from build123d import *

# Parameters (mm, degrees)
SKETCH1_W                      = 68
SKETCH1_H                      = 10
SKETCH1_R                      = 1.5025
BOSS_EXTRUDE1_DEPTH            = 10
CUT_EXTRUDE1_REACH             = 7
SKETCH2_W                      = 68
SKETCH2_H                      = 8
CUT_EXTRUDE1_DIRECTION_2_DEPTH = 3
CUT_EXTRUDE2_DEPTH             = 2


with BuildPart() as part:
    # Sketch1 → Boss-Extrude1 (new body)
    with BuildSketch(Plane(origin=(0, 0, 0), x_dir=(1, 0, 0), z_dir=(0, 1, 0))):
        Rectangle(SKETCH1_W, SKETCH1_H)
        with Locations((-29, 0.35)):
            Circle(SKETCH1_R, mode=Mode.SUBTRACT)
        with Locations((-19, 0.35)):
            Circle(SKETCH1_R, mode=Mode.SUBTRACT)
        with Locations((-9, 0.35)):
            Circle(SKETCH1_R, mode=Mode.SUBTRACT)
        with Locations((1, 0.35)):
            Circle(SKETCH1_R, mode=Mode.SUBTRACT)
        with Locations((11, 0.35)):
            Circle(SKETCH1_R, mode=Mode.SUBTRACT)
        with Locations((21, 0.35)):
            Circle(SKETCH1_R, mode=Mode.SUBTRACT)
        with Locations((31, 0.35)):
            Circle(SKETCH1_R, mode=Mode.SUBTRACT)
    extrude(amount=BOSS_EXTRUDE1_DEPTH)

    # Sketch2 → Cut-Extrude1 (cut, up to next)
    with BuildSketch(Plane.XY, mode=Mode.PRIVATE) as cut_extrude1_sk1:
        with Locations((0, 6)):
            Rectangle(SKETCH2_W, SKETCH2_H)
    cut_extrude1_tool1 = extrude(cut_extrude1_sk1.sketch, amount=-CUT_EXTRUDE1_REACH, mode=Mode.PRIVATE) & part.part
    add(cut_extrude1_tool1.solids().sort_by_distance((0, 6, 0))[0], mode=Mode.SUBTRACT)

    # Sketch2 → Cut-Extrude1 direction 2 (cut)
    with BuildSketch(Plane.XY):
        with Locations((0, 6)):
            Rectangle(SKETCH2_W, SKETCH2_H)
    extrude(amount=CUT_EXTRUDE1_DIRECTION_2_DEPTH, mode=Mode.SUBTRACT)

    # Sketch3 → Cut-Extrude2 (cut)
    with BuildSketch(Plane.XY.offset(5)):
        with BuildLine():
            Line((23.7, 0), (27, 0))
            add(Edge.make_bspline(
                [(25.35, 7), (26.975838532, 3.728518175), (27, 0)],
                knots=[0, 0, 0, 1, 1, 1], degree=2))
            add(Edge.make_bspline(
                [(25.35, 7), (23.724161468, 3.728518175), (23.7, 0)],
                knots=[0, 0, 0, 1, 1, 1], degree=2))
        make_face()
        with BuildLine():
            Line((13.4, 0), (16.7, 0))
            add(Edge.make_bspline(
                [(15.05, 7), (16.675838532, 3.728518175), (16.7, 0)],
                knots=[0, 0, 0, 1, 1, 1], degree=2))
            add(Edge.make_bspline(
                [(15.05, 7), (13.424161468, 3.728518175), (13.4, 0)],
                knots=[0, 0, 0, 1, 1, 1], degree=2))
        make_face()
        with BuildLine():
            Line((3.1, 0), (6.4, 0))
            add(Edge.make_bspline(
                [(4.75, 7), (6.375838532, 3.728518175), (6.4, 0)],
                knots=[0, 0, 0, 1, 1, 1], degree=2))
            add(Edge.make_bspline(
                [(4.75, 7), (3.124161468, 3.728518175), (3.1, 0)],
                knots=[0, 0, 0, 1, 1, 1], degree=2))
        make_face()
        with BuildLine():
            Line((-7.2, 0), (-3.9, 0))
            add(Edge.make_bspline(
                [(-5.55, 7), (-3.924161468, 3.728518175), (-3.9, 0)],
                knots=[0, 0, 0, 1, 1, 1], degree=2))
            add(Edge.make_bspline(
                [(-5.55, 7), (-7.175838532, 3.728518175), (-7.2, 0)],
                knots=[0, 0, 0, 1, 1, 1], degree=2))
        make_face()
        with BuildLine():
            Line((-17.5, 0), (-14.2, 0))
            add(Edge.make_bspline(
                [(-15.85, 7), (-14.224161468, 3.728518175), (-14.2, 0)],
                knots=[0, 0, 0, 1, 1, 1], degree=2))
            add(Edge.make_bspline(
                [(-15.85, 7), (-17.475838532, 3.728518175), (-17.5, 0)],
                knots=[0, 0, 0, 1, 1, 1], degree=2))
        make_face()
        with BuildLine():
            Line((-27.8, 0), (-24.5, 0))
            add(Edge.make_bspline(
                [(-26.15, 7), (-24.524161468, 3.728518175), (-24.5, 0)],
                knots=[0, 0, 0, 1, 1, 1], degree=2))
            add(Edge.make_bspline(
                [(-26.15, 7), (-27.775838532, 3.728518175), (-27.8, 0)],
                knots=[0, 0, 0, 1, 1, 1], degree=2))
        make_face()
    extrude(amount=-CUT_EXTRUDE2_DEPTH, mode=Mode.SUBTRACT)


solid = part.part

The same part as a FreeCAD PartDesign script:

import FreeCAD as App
import Part
import Sketcher


def add_polygon(sketch, points):
    """Adds a closed chain of lines whose ends are joined by coincident constraints."""
    first, n = sketch.GeometryCount, len(points)
    for a, b in zip(points, points[1:] + points[:1]):
        sketch.addGeometry(Part.LineSegment(App.Vector(*a, 0), App.Vector(*b, 0)), False)
    for i in range(n):
        sketch.addConstraint(Sketcher.Constraint("Coincident", first + i, 2, first + (i + 1) % n, 1))

doc = App.newDocument("Part")
body = doc.addObject("PartDesign::Body", "Body")

# Sketch on XZ plane
sketch1 = doc.addObject("Sketcher::SketchObject", "Sketch")
body.addObject(sketch1)
sketch1.AttachmentSupport = (doc.XZ_Plane, [""])
sketch1.MapMode = "FlatFace"
add_polygon(sketch1, [(-34, -5), (-34, 5), (34, 5), (34, -5)])  # lines 0-3
sketch1.addGeometry(Part.Circle(App.Vector(-29, -0.3, 0), App.Vector(0, 0, 1), 1.5), False)  # 4
sketch1.addGeometry(Part.Circle(App.Vector(-19, -0.3, 0), App.Vector(0, 0, 1), 1.5), False)  # 5
sketch1.addGeometry(Part.Circle(App.Vector(-9, -0.3, 0), App.Vector(0, 0, 1), 1.5), False)  # 6
sketch1.addGeometry(Part.Circle(App.Vector(1, -0.3, 0), App.Vector(0, 0, 1), 1.5), False)  # 7
sketch1.addGeometry(Part.Circle(App.Vector(11, -0.3, 0), App.Vector(0, 0, 1), 1.5), False)  # 8
sketch1.addGeometry(Part.Circle(App.Vector(21, -0.3, 0), App.Vector(0, 0, 1), 1.5), False)  # 9
sketch1.addGeometry(Part.Circle(App.Vector(31, -0.3, 0), App.Vector(0, 0, 1), 1.5), False)  # 10
sketch1.addConstraint([
    Sketcher.Constraint("Vertical", 0),
    Sketcher.Constraint("Horizontal", 1),
    Sketcher.Constraint("Vertical", 2),
    Sketcher.Constraint("Horizontal", 3),
    Sketcher.Constraint("Equal", 4, 5),
    Sketcher.Constraint("Equal", 5, 6),
    Sketcher.Constraint("Equal", 6, 7),
    Sketcher.Constraint("Equal", 7, 8),
    Sketcher.Constraint("Equal", 8, 9),
    Sketcher.Constraint("Equal", 9, 10),
    Sketcher.Constraint("Symmetric", 0, 2, 2, 2, -1, 1),
    Sketcher.Constraint("Horizontal", 4, 3, 5, 3),
    Sketcher.Constraint("Horizontal", 5, 3, 6, 3),
    Sketcher.Constraint("Horizontal", 6, 3, 7, 3),
    Sketcher.Constraint("Horizontal", 7, 3, 8, 3),
    Sketcher.Constraint("Horizontal", 8, 3, 9, 3),
    Sketcher.Constraint("Horizontal", 9, 3, 10, 3),
    Sketcher.Constraint("DistanceX", 1, 1, 1, 2, 68.0),
    Sketcher.Constraint("DistanceY", 0, 1, 0, 2, 10.0),
    Sketcher.Constraint("Diameter", 4, 3.005),
    Sketcher.Constraint("DistanceX", 4, 3, -1, 1, 29.0),
    Sketcher.Constraint("DistanceX", 5, 3, -1, 1, 19.0),
    Sketcher.Constraint("DistanceX", 6, 3, -1, 1, 9.0),
    Sketcher.Constraint("DistanceX", -1, 1, 7, 3, 1.0),
    Sketcher.Constraint("DistanceX", -1, 1, 8, 3, 11.0),
    Sketcher.Constraint("DistanceX", -1, 1, 9, 3, 21.0),
    Sketcher.Constraint("DistanceX", -1, 1, 10, 3, 31.0),
    Sketcher.Constraint("DistanceY", 4, 3, -1, 1, 0.35),
])
pad1 = doc.addObject("PartDesign::Pad", "Pad")
body.addObject(pad1)
pad1.Profile = sketch1
pad1.Length = 10
pad1.Reversed = True

# Sketch on XY plane
sketch2 = doc.addObject("Sketcher::SketchObject", "Sketch001")
body.addObject(sketch2)
sketch2.AttachmentSupport = (doc.XY_Plane, [""])
sketch2.MapMode = "FlatFace"
add_polygon(sketch2, [(-34, 10), (-34, 2), (34, 2), (34, 10)])  # lines 0-3
sketch2.addConstraint([
    Sketcher.Constraint("Vertical", 0),
    Sketcher.Constraint("Horizontal", 1),
    Sketcher.Constraint("Vertical", 2),
    Sketcher.Constraint("Horizontal", 3),
    Sketcher.Constraint("DistanceX", 1, 1, 1, 2, 68.0),
    Sketcher.Constraint("DistanceY", 0, 2, 0, 1, 8.0),
    Sketcher.Constraint("DistanceX", 0, 2, -1, 1, 34.0),
    Sketcher.Constraint("DistanceY", -1, 1, 0, 2, 2.0),
])
pocket1 = doc.addObject("PartDesign::Pocket", "Pocket")
body.addObject(pocket1)
pocket1.Profile = sketch2
pocket1.Length = 5

# Sketch on XY plane
sketch3 = doc.addObject("Sketcher::SketchObject", "Sketch002")
body.addObject(sketch3)
sketch3.AttachmentSupport = (doc.XY_Plane, [""])
sketch3.MapMode = "FlatFace"
add_polygon(sketch3, [(-34, 10), (-34, 2), (34, 2), (34, 10)])  # lines 0-3
sketch3.addConstraint([
    Sketcher.Constraint("Vertical", 0),
    Sketcher.Constraint("Horizontal", 1),
    Sketcher.Constraint("Vertical", 2),
    Sketcher.Constraint("Horizontal", 3),
    Sketcher.Constraint("DistanceX", 1, 1, 1, 2, 68.0),
    Sketcher.Constraint("DistanceY", 0, 2, 0, 1, 8.0),
    Sketcher.Constraint("DistanceX", 0, 2, -1, 1, 34.0),
    Sketcher.Constraint("DistanceY", -1, 1, 0, 2, 2.0),
])
pocket2 = doc.addObject("PartDesign::Pocket", "Pocket001")
body.addObject(pocket2)
pocket2.Profile = sketch3
pocket2.Length = 3
pocket2.Reversed = True

# Sketch on XY plane
sketch4 = doc.addObject("Sketcher::SketchObject", "Sketch003")
body.addObject(sketch4)
sketch4.AttachmentSupport = (doc.XY_Plane, [""])
sketch4.MapMode = "FlatFace"
sketch4.AttachmentOffset = App.Placement(App.Vector(0, 0, 5), App.Rotation())
sketch4.addGeometry([
    Part.LineSegment(App.Vector(23.7, 0, 0), App.Vector(27, 0, 0)),  # 0
    Part.BSplineCurve([App.Vector(25.35, 7, 0), App.Vector(26.975839, 3.728518, 0), App.Vector(27, 0, 0)], [3, 3], [0, 1], False, 2, [1, 1, 1], False),  # 1
    Part.BSplineCurve([App.Vector(25.35, 7, 0), App.Vector(23.724161, 3.728518, 0), App.Vector(23.7, 0, 0)], [3, 3], [0, 1], False, 2, [1, 1, 1], False),  # 2
    Part.LineSegment(App.Vector(13.4, 0, 0), App.Vector(16.7, 0, 0)),  # 3
    Part.BSplineCurve([App.Vector(15.05, 7, 0), App.Vector(16.675839, 3.728518, 0), App.Vector(16.7, 0, 0)], [3, 3], [0, 1], False, 2, [1, 1, 1], False),  # 4
    Part.BSplineCurve([App.Vector(15.05, 7, 0), App.Vector(13.424161, 3.728518, 0), App.Vector(13.4, 0, 0)], [3, 3], [0, 1], False, 2, [1, 1, 1], False),  # 5
    Part.LineSegment(App.Vector(3.1, 0, 0), App.Vector(6.4, 0, 0)),  # 6
    Part.BSplineCurve([App.Vector(4.75, 7, 0), App.Vector(6.375839, 3.728518, 0), App.Vector(6.4, 0, 0)], [3, 3], [0, 1], False, 2, [1, 1, 1], False),  # 7
    Part.BSplineCurve([App.Vector(4.75, 7, 0), App.Vector(3.124161, 3.728518, 0), App.Vector(3.1, 0, 0)], [3, 3], [0, 1], False, 2, [1, 1, 1], False),  # 8
    Part.LineSegment(App.Vector(-7.2, 0, 0), App.Vector(-3.9, 0, 0)),  # 9
    Part.BSplineCurve([App.Vector(-5.55, 7, 0), App.Vector(-3.924161, 3.728518, 0), App.Vector(-3.9, 0, 0)], [3, 3], [0, 1], False, 2, [1, 1, 1], False),  # 10
    Part.BSplineCurve([App.Vector(-5.55, 7, 0), App.Vector(-7.175839, 3.728518, 0), App.Vector(-7.2, 0, 0)], [3, 3], [0, 1], False, 2, [1, 1, 1], False),  # 11
    Part.LineSegment(App.Vector(-17.5, 0, 0), App.Vector(-14.2, 0, 0)),  # 12
    Part.BSplineCurve([App.Vector(-15.85, 7, 0), App.Vector(-14.224161, 3.728518, 0), App.Vector(-14.2, 0, 0)], [3, 3], [0, 1], False, 2, [1, 1, 1], False),  # 13
    Part.BSplineCurve([App.Vector(-15.85, 7, 0), App.Vector(-17.475839, 3.728518, 0), App.Vector(-17.5, 0, 0)], [3, 3], [0, 1], False, 2, [1, 1, 1], False),  # 14
    Part.LineSegment(App.Vector(-27.8, 0, 0), App.Vector(-24.5, 0, 0)),  # 15
    Part.BSplineCurve([App.Vector(-26.15, 7, 0), App.Vector(-24.524161, 3.728518, 0), App.Vector(-24.5, 0, 0)], [3, 3], [0, 1], False, 2, [1, 1, 1], False),  # 16
    Part.BSplineCurve([App.Vector(-26.15, 7, 0), App.Vector(-27.775839, 3.728518, 0), App.Vector(-27.8, 0, 0)], [3, 3], [0, 1], False, 2, [1, 1, 1], False),  # 17
], False)
sketch4.addConstraint([
    Sketcher.Constraint("Block", 1),
    Sketcher.Constraint("Block", 2),
    Sketcher.Constraint("Block", 4),
    Sketcher.Constraint("Block", 5),
    Sketcher.Constraint("Block", 7),
    Sketcher.Constraint("Block", 8),
    Sketcher.Constraint("Block", 10),
    Sketcher.Constraint("Block", 11),
    Sketcher.Constraint("Block", 13),
    Sketcher.Constraint("Block", 14),
    Sketcher.Constraint("Block", 16),
    Sketcher.Constraint("Block", 17),
    Sketcher.Constraint("Coincident", 0, 2, 1, 2),
    Sketcher.Constraint("Coincident", 2, 2, 0, 1),
    Sketcher.Constraint("Coincident", 3, 2, 4, 2),
    Sketcher.Constraint("Coincident", 5, 2, 3, 1),
    Sketcher.Constraint("Coincident", 6, 2, 7, 2),
    Sketcher.Constraint("Coincident", 8, 2, 6, 1),
    Sketcher.Constraint("Coincident", 9, 2, 10, 2),
    Sketcher.Constraint("Coincident", 11, 2, 9, 1),
    Sketcher.Constraint("Coincident", 12, 2, 13, 2),
    Sketcher.Constraint("Coincident", 14, 2, 12, 1),
    Sketcher.Constraint("Coincident", 15, 2, 16, 2),
    Sketcher.Constraint("Coincident", 17, 2, 15, 1),
])
pocket3 = doc.addObject("PartDesign::Pocket", "Pocket002")
body.addObject(pocket3)
pocket3.Profile = sketch4
pocket3.Length = 2

doc.recompute()
